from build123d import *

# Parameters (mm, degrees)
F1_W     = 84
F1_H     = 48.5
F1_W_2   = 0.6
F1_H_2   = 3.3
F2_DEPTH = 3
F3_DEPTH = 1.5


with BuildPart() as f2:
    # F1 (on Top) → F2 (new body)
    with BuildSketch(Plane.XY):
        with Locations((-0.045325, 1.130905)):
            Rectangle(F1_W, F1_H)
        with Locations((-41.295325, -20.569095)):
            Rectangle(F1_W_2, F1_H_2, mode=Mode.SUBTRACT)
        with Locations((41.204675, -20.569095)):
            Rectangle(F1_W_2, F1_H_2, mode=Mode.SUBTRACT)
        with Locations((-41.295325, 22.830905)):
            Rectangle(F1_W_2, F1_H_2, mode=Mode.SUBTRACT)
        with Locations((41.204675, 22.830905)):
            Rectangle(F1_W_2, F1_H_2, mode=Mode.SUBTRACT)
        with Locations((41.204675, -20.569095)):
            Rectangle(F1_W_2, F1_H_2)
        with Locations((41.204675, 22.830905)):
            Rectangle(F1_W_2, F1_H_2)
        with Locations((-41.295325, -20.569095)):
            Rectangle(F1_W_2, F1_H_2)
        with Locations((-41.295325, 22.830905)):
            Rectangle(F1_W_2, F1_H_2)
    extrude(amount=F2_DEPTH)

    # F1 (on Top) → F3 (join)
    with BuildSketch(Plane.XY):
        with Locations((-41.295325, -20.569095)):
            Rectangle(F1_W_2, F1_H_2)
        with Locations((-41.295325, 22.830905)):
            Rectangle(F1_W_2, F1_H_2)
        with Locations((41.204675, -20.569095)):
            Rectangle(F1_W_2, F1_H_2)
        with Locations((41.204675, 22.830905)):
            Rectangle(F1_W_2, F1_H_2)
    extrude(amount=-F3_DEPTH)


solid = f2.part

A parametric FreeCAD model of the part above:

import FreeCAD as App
import Part
import Sketcher

V = App.Vector

doc = App.newDocument("Part")
body = doc.addObject("PartDesign::Body", "Body")

# Sketch on XY plane
sketch1 = body.newObject("Sketcher::SketchObject", "Sketch")
sketch1.AttachmentSupport = (doc.getObject("XY_Plane"), [""])
sketch1.MapMode = "FlatFace"
sketch1.addGeometry([
    Part.LineSegment(V(-42, 25, 0), V(-42, -23, 0)),
    Part.LineSegment(V(-42, -23, 0), V(42, -23, 0)),
    Part.LineSegment(V(42, -23, 0), V(42, 25, 0)),
    Part.LineSegment(V(42, 25, 0), V(-42, 25, 0)),
], False)
sketch1.addConstraint([
    Sketcher.Constraint("Coincident", 0, 2, 1, 1),
    Sketcher.Constraint("Coincident", 1, 2, 2, 1),
    Sketcher.Constraint("Coincident", 2, 2, 3, 1),
    Sketcher.Constraint("Coincident", 3, 2, 0, 1),
    Sketcher.Constraint("Vertical", 0),
    Sketcher.Constraint("Horizontal", 1),
    Sketcher.Constraint("Vertical", 2),
    Sketcher.Constraint("Horizontal", 3),
    Sketcher.Constraint("DistanceX", 1, 1, 1, 2, 84.0),
    Sketcher.Constraint("DistanceY", 0, 2, 0, 1, 48.5),
    Sketcher.Constraint("DistanceX", 0, 2, -1, 1, 42.045325),
    Sketcher.Constraint("DistanceY", 0, 2, -1, 1, 23.119095),
])
pad1 = body.newObject("PartDesign::Pad", "Pad")
pad1.Profile = sketch1
pad1.Length = 3

# Sketch on XY plane
sketch2 = body.newObject("Sketcher::SketchObject", "Sketch001")
sketch2.AttachmentSupport = (doc.getObject("XY_Plane"), [""])
sketch2.MapMode = "FlatFace"
sketch2.addGeometry([
    Part.LineSegment(V(-41.6, -18.9, 0), V(-41.6, -22.2, 0)),  # 0
    Part.LineSegment(V(-41.6, -22.2, 0), V(-41, -22.2, 0)),  # 1
    Part.LineSegment(V(-41, -22.2, 0), V(-41, -18.9, 0)),  # 2
    Part.LineSegment(V(-41, -18.9, 0), V(-41.6, -18.9, 0)),  # 3
    Part.LineSegment(V(-41.6, 24.5, 0), V(-41.6, 21.2, 0)),  # 4
    Part.LineSegment(V(-41.6, 21.2, 0), V(-41, 21.2, 0)),  # 5
    Part.LineSegment(V(-41, 21.2, 0), V(-41, 24.5, 0)),  # 6
    Part.LineSegment(V(-41, 24.5, 0), V(-41.6, 24.5, 0)),  # 7
    Part.LineSegment(V(40.9, -18.9, 0), V(40.9, -22.2, 0)),  # 8
    Part.LineSegment(V(40.9, -22.2, 0), V(41.5, -22.2, 0)),  # 9
    Part.LineSegment(V(41.5, -22.2, 0), V(41.5, -18.9, 0)),  # 10
    Part.LineSegment(V(41.5, -18.9, 0), V(40.9, -18.9, 0)),  # 11
    Part.LineSegment(V(40.9, 24.5, 0), V(40.9, 21.2, 0)),  # 12
    Part.LineSegment(V(40.9, 21.2, 0), V(41.5, 21.2, 0)),  # 13
    Part.LineSegment(V(41.5, 21.2, 0), V(41.5, 24.5, 0)),  # 14
    Part.LineSegment(V(41.5, 24.5, 0), V(40.9, 24.5, 0)),  # 15
], False)
sketch2.addConstraint([
    Sketcher.Constraint("Coincident", 0, 2, 1, 1),
    Sketcher.Constraint("Coincident", 1, 2, 2, 1),
    Sketcher.Constraint("Coincident", 2, 2, 3, 1),
    Sketcher.Constraint("Coincident", 3, 2, 0, 1),
    Sketcher.Constraint("Coincident", 4, 2, 5, 1),
    Sketcher.Constraint("Coincident", 5, 2, 6, 1),
    Sketcher.Constraint("Coincident", 6, 2, 7, 1),
    Sketcher.Constraint("Coincident", 7, 2, 4, 1),
    Sketcher.Constraint("Coincident", 8, 2, 9, 1),
    Sketcher.Constraint("Coincident", 9, 2, 10, 1),
    Sketcher.Constraint("Coincident", 10, 2, 11, 1),
    Sketcher.Constraint("Coincident", 11, 2, 8, 1),
    Sketcher.Constraint("Coincident", 12, 2, 13, 1),
    Sketcher.Constraint("Coincident", 13, 2, 14, 1),
    Sketcher.Constraint("Coincident", 14, 2, 15, 1),
    Sketcher.Constraint("Coincident", 15, 2, 12, 1),
    Sketcher.Constraint("Vertical", 0),
    Sketcher.Constraint("Horizontal", 1),
    Sketcher.Constraint("Vertical", 2),
    Sketcher.Constraint("Horizontal", 3),
    Sketcher.Constraint("Vertical", 4),
    Sketcher.Constraint("Horizontal", 5),
    Sketcher.Constraint("Vertical", 6),
    Sketcher.Constraint("Horizontal", 7),
    Sketcher.Constraint("Vertical", 8),
    Sketcher.Constraint("Horizontal", 9),
    Sketcher.Constraint("Vertical", 10),
    Sketcher.Constraint("Horizontal", 11),
    Sketcher.Constraint("Vertical", 12),
    Sketcher.Constraint("Horizontal", 13),
    Sketcher.Constraint("Vertical", 14),
    Sketcher.Constraint("Horizontal", 15),
    Sketcher.Constraint("Horizontal", 1, 2, 8, 2),
    Sketcher.Constraint("Horizontal", 3, 2, 10, 2),
    Sketcher.Constraint("Horizontal", 5, 2, 12, 2),
    Sketcher.Constraint("Horizontal", 7, 2, 14, 2),
    Sketcher.Constraint("Vertical", 3, 2, 4, 2),
    Sketcher.Constraint("Vertical", 2, 2, 5, 2),
    Sketcher.Constraint("Vertical", 11, 2, 12, 2),
    Sketcher.Constraint("Vertical", 10, 2, 13, 2),
    Sketcher.Constraint("Equal", 7, 9),
    Sketcher.Constraint("Equal", 2, 4),
    Sketcher.Constraint("DistanceX", 1, 1, 1, 2, 0.6),
    Sketcher.Constraint("DistanceY", 0, 2, 0, 1, 3.3),
    Sketcher.Constraint("DistanceY", 3, 2, 4, 2, 40.1),
    Sketcher.Constraint("DistanceX", 1, 2, 8, 2, 81.9),
    Sketcher.Constraint("DistanceX", 0, 2, -1, 1, 41.595325),
    Sketcher.Constraint("DistanceY", 0, 2, -1, 1, 22.219095),
])
pad2 = body.newObject("PartDesign::Pad", "Pad001")
pad2.Profile = sketch2
pad2.Length = 1.5
pad2.Reversed = True

doc.recompute()
